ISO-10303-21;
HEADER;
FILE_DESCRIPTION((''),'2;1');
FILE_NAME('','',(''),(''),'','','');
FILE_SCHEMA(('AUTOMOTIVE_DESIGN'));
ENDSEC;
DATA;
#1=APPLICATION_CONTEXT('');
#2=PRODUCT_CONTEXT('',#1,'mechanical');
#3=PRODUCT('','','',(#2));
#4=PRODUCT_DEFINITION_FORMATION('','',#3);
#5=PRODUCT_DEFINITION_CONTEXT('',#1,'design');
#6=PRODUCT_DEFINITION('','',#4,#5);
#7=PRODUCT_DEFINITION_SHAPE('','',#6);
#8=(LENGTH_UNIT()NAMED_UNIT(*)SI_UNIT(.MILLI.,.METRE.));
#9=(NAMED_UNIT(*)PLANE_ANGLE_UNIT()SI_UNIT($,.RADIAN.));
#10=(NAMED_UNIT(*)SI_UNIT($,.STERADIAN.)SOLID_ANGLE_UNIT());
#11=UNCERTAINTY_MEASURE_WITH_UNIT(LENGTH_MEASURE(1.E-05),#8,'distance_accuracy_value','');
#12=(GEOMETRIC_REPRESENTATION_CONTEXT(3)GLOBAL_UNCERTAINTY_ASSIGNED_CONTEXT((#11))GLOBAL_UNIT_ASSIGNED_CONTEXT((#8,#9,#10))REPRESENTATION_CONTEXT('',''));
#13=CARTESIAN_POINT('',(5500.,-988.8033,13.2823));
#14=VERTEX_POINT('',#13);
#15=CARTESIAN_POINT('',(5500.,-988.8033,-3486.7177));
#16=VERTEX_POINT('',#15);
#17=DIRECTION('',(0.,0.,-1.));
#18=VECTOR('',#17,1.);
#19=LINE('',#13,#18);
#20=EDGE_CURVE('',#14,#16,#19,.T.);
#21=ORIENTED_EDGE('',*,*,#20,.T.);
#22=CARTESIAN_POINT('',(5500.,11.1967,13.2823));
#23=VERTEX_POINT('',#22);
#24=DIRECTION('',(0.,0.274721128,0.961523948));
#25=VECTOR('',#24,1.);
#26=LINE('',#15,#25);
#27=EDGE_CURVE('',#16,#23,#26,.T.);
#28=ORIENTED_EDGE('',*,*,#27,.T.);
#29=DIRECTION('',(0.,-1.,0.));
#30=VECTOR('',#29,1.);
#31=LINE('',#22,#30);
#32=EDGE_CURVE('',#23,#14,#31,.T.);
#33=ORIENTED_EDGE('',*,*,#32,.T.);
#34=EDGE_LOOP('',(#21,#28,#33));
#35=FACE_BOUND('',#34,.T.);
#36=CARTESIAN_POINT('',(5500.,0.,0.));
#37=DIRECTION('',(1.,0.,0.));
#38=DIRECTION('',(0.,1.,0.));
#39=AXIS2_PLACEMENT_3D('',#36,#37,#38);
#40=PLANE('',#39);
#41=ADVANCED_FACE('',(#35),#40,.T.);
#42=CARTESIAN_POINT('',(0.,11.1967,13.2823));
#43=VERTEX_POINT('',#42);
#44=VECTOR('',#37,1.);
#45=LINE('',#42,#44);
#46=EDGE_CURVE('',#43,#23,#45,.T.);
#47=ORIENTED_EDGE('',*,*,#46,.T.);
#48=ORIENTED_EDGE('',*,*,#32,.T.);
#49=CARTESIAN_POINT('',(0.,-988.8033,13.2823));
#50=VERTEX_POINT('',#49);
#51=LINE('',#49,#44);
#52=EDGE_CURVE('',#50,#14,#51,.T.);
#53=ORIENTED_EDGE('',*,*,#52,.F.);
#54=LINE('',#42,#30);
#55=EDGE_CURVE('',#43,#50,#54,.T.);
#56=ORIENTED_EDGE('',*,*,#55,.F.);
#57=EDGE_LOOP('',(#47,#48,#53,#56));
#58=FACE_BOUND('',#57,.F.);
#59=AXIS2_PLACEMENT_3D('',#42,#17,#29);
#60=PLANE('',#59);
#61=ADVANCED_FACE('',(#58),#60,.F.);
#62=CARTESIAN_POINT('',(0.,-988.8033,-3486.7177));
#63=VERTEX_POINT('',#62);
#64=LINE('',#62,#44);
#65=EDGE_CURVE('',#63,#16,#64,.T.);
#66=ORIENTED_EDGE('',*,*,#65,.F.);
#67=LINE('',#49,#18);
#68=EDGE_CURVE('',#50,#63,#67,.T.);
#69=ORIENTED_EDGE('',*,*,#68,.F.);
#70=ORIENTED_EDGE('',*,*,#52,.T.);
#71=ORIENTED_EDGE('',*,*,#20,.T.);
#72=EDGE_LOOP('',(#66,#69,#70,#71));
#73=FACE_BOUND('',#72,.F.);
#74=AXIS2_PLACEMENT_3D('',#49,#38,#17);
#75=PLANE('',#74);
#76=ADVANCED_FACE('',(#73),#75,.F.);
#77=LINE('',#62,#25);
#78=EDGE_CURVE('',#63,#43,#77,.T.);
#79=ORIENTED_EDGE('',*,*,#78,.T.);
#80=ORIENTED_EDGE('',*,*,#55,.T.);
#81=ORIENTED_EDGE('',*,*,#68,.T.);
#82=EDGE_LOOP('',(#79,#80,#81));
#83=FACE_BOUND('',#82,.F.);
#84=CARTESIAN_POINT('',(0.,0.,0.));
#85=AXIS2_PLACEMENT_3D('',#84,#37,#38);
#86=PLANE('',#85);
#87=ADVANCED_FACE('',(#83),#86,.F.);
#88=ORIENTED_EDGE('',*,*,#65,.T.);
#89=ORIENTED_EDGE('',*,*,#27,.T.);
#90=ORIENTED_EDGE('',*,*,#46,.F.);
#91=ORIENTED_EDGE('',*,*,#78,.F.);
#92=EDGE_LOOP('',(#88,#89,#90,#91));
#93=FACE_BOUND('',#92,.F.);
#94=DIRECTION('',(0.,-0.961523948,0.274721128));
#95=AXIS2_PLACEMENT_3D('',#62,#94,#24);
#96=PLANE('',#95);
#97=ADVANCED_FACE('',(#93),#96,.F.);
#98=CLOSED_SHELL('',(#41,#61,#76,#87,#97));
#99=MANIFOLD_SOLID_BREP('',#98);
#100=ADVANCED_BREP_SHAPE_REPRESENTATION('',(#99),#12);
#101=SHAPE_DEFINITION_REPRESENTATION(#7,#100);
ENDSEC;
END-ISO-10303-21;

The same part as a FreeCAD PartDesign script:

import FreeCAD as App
import Part
import Sketcher
Q = App.Units.Quantity


def add_polygon(sketch, points):
    """Adds a closed chain of lines whose ends are joined by coincident constraints."""
    first, n = sketch.GeometryCount, len(points)
    for a, b in zip(points, points[1:] + points[:1]):
        sketch.addGeometry(Part.LineSegment(App.Vector(*a, 0), App.Vector(*b, 0)), False)
    for i in range(n):
        sketch.addConstraint(Sketcher.Constraint("Coincident", first + i, 2, first + (i + 1) % n, 1))

doc = App.newDocument("Part")
body = doc.addObject("PartDesign::Body", "Body")

sketch1 = body.newObject("Sketcher::SketchObject", "Sketch")
sketch1.AttachmentSupport = (doc.getObject("YZ_Plane"), [""])
sketch1.MapMode = "FlatFace"
add_polygon(sketch1, [(-988.8033, -3486.7177), (11.1967, 13.2823), (-988.8033, 13.2823)])
sketch1.addConstraint([
    Sketcher.Constraint("Horizontal", 1),
    Sketcher.Constraint("Vertical", 2),
    Sketcher.Constraint("DistanceX", 1, 2, 1, 1, Q("1000 mm")),
    Sketcher.Constraint("DistanceY", 2, 2, 2, 1, Q("3500 mm")),
    Sketcher.Constraint("DistanceX", -1, 1, 0, 2, Q("11.1967 mm")),
    Sketcher.Constraint("DistanceY", -1, 1, 0, 2, Q("13.2823 mm")),
])
pad1 = body.newObject("PartDesign::Pad", "Pad")
pad1.Profile = sketch1
pad1.Length = 5500

doc.recompute()
